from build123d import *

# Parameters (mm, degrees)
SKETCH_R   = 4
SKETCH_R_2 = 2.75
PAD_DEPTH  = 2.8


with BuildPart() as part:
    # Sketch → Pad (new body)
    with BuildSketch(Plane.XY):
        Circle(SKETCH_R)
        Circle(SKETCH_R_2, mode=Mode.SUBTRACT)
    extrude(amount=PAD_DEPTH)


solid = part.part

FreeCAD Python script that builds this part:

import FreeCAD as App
import Part
import Sketcher
from FreeCAD import Vector
Q = App.Units.Quantity

doc = App.newDocument("Part")
params = doc.addObject("Spreadsheet::Sheet", "Params")
for row, (alias, value) in enumerate([
    ("sketch1_diameter", "8 mm"),
    ("sketch1_diameter2", "5.5 mm"),
    ("pad1_length", "2.8 mm"),
], start=1):
    params.set(f"A{row}", alias)
    params.set(f"B{row}", "=" + value)
    params.setAlias(f"B{row}", alias)

body = doc.addObject("PartDesign::Body", "Body")

sketch1 = body.newObject("Sketcher::SketchObject", "Sketch")
sketch1.AttachmentSupport = (doc.getObject("XY_Plane"), [""])
sketch1.MapMode = "FlatFace"
sketch1.addGeometry([
    Part.Circle(Vector(0, 0, 0), Vector(0, 0, 1), 4),
    Part.Circle(Vector(0, 0, 0), Vector(0, 0, 1), 2.8),
], False)
sketch1.addConstraint([
    Sketcher.Constraint("Coincident", 0, 3, -1, 1),
    Sketcher.Constraint("Coincident", 1, 3, -1, 1),
    Sketcher.Constraint("Diameter", 0, Q("8 mm")),
    Sketcher.Constraint("Diameter", 1, Q("5.5 mm")),
])
sketch1.setExpression("Constraints[2]", "Params.sketch1_diameter")
sketch1.setExpression("Constraints[3]", "Params.sketch1_diameter2")
pad1 = body.newObject("PartDesign::Pad", "Pad")
pad1.Profile = sketch1
pad1.setExpression("Length", "Params.pad1_length")

doc.recompute()
